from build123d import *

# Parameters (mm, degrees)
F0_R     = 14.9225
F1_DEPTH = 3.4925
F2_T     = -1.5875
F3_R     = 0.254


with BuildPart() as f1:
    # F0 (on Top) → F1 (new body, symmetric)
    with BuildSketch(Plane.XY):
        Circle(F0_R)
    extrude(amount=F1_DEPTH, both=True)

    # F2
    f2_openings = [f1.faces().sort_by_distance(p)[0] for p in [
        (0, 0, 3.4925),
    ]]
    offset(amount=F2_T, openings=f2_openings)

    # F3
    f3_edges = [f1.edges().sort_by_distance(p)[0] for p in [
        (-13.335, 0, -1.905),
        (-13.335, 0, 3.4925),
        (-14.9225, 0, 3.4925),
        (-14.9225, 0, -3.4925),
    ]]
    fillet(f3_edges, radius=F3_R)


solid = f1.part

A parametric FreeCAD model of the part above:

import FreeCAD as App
import Part
import Sketcher
from FreeCAD import Vector
Q = App.Units.Quantity


def edges_at(feature, points):
    """Names of the edges that pass closest to the given points."""
    edges = feature.Shape.Edges
    near = lambda p: min(range(len(edges)), key=lambda i: edges[i].distToShape(Part.Vertex(*p))[0])
    return sorted({f"Edge{near(p) + 1}" for p in points})


def faces_at(feature, points):
    """Names of the faces that lie closest to the given points."""
    faces = feature.Shape.Faces
    near = lambda p: min(range(len(faces)), key=lambda i: faces[i].distToShape(Part.Vertex(*p))[0])
    return sorted({f"Face{near(p) + 1}" for p in points})

doc = App.newDocument("Part")
body = doc.addObject("PartDesign::Body", "Body")

# Sketch on XY plane
sketch1 = body.newObject("Sketcher::SketchObject", "Sketch")
sketch1.AttachmentSupport = (doc.getObject("XY_Plane"), [""])
sketch1.MapMode = "FlatFace"
sketch1.addGeometry(Part.Circle(Vector(0, 0, 0), Vector(0, 0, 1), 14.9225), False)
sketch1.addConstraint([
    Sketcher.Constraint("Coincident", 0, 3, -1, 1),
    Sketcher.Constraint("Diameter", 0, Q("1.175 in")),
])
pad1 = body.newObject("PartDesign::Pad", "Pad")
pad1.Profile = sketch1
pad1.Length = Q("0.275 in")
pad1.Midplane = True
doc.recompute()

thickness = body.newObject("PartDesign::Thickness", "Thickness")
thickness.Base = (pad1, faces_at(pad1, [(0, 0, 3.493)]))
thickness.Value = Q("0.0625 in")
thickness.Reversed = True
thickness.Join = "Arc"
doc.recompute()

fillet = body.newObject("PartDesign::Fillet", "Fillet")
fillet.Base = (thickness, edges_at(thickness, [
    (-13.335, 0, -1.905),
    (-13.335, 0, 3.493),
    (-14.922, 0, 3.493),
    (-14.922, 0, -3.493),
]))
fillet.Radius = Q("0.01 in")

doc.recompute()
